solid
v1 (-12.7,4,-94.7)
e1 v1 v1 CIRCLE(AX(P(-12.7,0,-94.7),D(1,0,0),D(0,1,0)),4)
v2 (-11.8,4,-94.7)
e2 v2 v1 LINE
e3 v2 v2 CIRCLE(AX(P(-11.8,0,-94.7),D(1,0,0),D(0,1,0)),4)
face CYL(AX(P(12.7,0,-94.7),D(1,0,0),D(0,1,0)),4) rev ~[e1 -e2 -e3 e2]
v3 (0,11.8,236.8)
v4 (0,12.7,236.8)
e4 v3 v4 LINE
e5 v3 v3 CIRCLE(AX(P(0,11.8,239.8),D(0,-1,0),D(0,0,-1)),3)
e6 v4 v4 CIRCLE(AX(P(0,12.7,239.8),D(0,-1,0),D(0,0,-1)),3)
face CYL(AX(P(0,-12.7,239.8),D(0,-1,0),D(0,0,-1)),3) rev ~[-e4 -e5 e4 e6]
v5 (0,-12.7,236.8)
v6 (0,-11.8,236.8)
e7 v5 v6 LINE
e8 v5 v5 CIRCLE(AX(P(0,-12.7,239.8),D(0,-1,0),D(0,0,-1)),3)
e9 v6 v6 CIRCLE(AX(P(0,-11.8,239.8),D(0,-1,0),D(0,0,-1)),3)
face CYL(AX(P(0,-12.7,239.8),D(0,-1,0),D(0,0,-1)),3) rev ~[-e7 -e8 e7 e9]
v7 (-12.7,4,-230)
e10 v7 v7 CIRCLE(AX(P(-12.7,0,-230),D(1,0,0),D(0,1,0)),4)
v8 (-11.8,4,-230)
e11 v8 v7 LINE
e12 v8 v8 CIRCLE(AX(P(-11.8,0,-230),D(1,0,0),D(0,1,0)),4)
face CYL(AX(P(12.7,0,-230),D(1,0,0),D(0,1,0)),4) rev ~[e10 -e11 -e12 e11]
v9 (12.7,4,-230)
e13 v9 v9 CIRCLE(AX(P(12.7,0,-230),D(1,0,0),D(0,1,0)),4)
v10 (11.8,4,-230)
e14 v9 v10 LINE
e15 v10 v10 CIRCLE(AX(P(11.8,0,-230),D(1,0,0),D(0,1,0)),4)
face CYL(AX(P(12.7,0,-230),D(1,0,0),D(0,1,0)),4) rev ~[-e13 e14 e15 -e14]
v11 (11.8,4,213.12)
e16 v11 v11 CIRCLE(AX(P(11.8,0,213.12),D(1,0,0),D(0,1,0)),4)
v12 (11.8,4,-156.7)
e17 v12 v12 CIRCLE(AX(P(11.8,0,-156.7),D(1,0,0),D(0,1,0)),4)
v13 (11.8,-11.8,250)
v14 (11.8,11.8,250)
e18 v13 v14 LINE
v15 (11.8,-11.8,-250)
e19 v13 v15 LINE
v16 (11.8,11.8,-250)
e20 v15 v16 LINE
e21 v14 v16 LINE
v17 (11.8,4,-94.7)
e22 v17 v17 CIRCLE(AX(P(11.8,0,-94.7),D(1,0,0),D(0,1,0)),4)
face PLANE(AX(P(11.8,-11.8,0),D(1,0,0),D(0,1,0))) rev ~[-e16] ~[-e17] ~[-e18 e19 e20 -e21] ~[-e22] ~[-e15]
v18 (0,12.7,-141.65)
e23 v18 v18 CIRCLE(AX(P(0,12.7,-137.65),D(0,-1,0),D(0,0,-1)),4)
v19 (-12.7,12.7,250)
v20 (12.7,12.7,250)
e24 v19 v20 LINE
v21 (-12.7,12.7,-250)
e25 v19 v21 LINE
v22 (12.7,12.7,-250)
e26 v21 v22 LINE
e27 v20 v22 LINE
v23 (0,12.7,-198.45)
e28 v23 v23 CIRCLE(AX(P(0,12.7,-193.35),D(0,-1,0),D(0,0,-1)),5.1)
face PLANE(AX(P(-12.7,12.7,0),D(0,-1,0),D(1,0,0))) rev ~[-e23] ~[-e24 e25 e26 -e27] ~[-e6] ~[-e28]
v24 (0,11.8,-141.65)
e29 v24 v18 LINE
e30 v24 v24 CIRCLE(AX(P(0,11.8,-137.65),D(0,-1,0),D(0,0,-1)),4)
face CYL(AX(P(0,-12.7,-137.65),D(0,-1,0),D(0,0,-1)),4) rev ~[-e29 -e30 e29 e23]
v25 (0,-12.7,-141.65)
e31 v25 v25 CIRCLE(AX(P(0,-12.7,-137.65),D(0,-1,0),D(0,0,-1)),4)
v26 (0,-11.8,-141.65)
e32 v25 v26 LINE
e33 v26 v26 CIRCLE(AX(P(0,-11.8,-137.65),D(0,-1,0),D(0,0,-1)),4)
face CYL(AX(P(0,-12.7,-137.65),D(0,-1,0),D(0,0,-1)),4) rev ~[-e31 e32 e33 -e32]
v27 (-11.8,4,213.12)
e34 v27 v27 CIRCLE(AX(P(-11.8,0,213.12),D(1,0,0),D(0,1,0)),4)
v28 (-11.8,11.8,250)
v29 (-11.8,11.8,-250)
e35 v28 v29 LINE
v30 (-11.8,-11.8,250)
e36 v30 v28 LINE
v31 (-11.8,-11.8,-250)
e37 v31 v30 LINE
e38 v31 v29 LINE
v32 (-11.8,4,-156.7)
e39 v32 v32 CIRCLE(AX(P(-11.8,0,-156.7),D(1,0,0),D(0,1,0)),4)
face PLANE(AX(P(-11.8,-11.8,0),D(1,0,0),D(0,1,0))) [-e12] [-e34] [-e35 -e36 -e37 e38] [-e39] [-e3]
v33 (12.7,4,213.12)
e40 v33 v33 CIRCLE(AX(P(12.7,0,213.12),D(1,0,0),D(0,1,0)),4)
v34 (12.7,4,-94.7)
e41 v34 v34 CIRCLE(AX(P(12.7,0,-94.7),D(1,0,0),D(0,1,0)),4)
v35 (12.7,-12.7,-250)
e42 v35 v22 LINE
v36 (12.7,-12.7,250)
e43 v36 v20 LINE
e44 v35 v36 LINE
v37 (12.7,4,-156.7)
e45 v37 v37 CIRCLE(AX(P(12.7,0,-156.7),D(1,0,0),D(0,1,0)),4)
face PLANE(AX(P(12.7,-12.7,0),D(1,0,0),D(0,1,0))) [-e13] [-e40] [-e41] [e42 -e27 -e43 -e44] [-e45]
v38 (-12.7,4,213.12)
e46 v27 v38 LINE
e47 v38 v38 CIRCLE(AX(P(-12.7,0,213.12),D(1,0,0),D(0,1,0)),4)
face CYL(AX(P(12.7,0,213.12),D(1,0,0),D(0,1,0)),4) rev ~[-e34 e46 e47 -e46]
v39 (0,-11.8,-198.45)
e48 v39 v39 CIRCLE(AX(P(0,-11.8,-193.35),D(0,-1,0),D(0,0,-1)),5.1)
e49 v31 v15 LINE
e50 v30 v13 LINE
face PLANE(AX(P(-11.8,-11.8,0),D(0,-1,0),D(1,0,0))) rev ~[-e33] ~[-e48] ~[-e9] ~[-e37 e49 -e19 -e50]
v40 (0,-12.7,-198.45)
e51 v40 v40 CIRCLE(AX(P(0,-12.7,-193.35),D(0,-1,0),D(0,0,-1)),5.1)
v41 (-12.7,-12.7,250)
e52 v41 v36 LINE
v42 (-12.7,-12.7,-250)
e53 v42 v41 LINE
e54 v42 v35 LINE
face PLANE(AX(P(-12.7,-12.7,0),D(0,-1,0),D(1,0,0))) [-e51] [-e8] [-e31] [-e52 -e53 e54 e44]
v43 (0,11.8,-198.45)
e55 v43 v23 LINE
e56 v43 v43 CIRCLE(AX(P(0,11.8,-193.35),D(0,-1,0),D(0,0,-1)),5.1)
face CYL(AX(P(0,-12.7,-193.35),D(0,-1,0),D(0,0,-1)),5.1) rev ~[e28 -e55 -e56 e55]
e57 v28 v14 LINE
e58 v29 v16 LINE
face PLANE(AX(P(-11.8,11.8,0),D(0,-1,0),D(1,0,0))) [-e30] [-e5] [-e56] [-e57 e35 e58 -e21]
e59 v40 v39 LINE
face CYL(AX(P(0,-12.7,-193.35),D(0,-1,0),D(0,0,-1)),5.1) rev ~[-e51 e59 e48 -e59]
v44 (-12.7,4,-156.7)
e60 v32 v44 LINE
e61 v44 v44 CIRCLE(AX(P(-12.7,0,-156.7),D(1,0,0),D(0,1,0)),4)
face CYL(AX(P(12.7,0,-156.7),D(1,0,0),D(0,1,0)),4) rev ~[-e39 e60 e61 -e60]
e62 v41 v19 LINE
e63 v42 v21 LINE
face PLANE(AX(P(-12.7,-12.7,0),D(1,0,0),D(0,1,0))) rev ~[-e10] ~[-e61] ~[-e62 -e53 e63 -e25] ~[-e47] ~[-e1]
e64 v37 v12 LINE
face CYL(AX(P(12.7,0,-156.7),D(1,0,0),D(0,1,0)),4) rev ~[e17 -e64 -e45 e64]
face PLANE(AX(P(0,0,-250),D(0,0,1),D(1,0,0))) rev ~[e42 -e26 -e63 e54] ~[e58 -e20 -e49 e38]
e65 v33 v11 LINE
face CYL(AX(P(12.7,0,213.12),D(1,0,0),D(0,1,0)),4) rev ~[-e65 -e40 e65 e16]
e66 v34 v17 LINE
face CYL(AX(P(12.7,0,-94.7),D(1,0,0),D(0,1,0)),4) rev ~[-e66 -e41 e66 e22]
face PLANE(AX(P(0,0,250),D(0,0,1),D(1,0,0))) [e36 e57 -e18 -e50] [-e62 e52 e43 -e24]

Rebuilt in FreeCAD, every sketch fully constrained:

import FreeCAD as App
import Part
import Sketcher
from FreeCAD import Vector

doc = App.newDocument("Part")
body = doc.addObject("PartDesign::Body", "Body")

sketch1 = body.newObject("Sketcher::SketchObject", "Sketch")
sketch1.AttachmentSupport = (doc.getObject("XY_Plane"), [""])
sketch1.MapMode = "FlatFace"
sketch1.addGeometry(Part.LineSegment(Vector(-12.7, 12.7, 0), Vector(-12.7, -12.7, 0)), False)
sketch1.addGeometry(Part.LineSegment(Vector(-12.7, -12.7, 0), Vector(12.7, -12.7, 0)), False)
sketch1.addGeometry(Part.LineSegment(Vector(12.7, -12.7, 0), Vector(12.7, 12.7, 0)), False)
sketch1.addGeometry(Part.LineSegment(Vector(12.7, 12.7, 0), Vector(-12.7, 12.7, 0)), False)
sketch1.addGeometry(Part.LineSegment(Vector(11.8, -11.8, 0), Vector(-11.8, -11.8, 0)), False)
sketch1.addGeometry(Part.LineSegment(Vector(-11.8, -11.8, 0), Vector(-11.8, 11.8, 0)), False)
sketch1.addGeometry(Part.LineSegment(Vector(-11.8, 11.8, 0), Vector(11.8, 11.8, 0)), False)
sketch1.addGeometry(Part.LineSegment(Vector(11.8, 11.8, 0), Vector(11.8, -11.8, 0)), False)
sketch1.addConstraint(Sketcher.Constraint("Coincident", 0, 2, 1, 1))
sketch1.addConstraint(Sketcher.Constraint("Coincident", 1, 2, 2, 1))
sketch1.addConstraint(Sketcher.Constraint("Coincident", 2, 2, 3, 1))
sketch1.addConstraint(Sketcher.Constraint("Coincident", 3, 2, 0, 1))
sketch1.addConstraint(Sketcher.Constraint("Coincident", 4, 2, 5, 1))
sketch1.addConstraint(Sketcher.Constraint("Coincident", 5, 2, 6, 1))
sketch1.addConstraint(Sketcher.Constraint("Coincident", 6, 2, 7, 1))
sketch1.addConstraint(Sketcher.Constraint("Coincident", 7, 2, 4, 1))
sketch1.addConstraint(Sketcher.Constraint("Vertical", 0))
sketch1.addConstraint(Sketcher.Constraint("Horizontal", 1))
sketch1.addConstraint(Sketcher.Constraint("Vertical", 2))
sketch1.addConstraint(Sketcher.Constraint("Horizontal", 3))
sketch1.addConstraint(Sketcher.Constraint("Horizontal", 4))
sketch1.addConstraint(Sketcher.Constraint("Vertical", 5))
sketch1.addConstraint(Sketcher.Constraint("Horizontal", 6))
sketch1.addConstraint(Sketcher.Constraint("Vertical", 7))
sketch1.addConstraint(Sketcher.Constraint("Symmetric", 0, 2, 2, 2, -1, 1))
sketch1.addConstraint(Sketcher.Constraint("Symmetric", 4, 2, 6, 2, -1, 1))
sketch1.addConstraint(Sketcher.Constraint("Equal", 3, 0))
sketch1.addConstraint(Sketcher.Constraint("Equal", 6, 5))
sketch1.addConstraint(Sketcher.Constraint("DistanceX", 1, 1, 1, 2, 25.4))
sketch1.addConstraint(Sketcher.Constraint("DistanceX", 4, 2, 4, 1, 23.6))
pad1 = body.newObject("PartDesign::Pad", "Pad")
pad1.Profile = sketch1
pad1.Length = 500
pad1.Midplane = True

sketch2 = body.newObject("Sketcher::SketchObject", "Sketch001")
sketch2.AttachmentSupport = (doc.getObject("YZ_Plane"), [""])
sketch2.MapMode = "FlatFace"
sketch2.AttachmentOffset = App.Placement(Vector(0, 0, 12.7), App.Rotation())
sketch2.addGeometry(Part.Circle(Vector(0, -156.7, 0), Vector(0, 0, 1), 4), False)
sketch2.addGeometry(Part.Circle(Vector(0, -230, 0), Vector(0, 0, 1), 4), False)
sketch2.addGeometry(Part.Circle(Vector(0, -94.7, 0), Vector(0, 0, 1), 4), False)
sketch2.addGeometry(Part.Circle(Vector(0, 213.12, 0), Vector(0, 0, 1), 4), False)
sketch2.addConstraint(Sketcher.Constraint("Equal", 0, 1))
sketch2.addConstraint(Sketcher.Constraint("Equal", 1, 2))
sketch2.addConstraint(Sketcher.Constraint("Equal", 2, 3))
sketch2.addConstraint(Sketcher.Constraint("PointOnObject", 0, 3, -2))
sketch2.addConstraint(Sketcher.Constraint("PointOnObject", 1, 3, -2))
sketch2.addConstraint(Sketcher.Constraint("PointOnObject", 2, 3, -2))
sketch2.addConstraint(Sketcher.Constraint("PointOnObject", 3, 3, -2))
sketch2.addConstraint(Sketcher.Constraint("Diameter", 0, 8.0))
sketch2.addConstraint(Sketcher.Constraint("DistanceY", 1, 3, -1, 1, 230.0))
sketch2.addConstraint(Sketcher.Constraint("DistanceY", 0, 3, 2, 3, 62.0))
sketch2.addConstraint(Sketcher.Constraint("DistanceY", 0, 3, -1, 1, 156.7))
sketch2.addConstraint(Sketcher.Constraint("DistanceY", -1, 1, 3, 3, 213.12))
pocket1 = body.newObject("PartDesign::Pocket", "Pocket")
pocket1.Profile = sketch2
pocket1.Type = "ThroughAll"

sketch3 = body.newObject("Sketcher::SketchObject", "Sketch002")
sketch3.AttachmentSupport = (doc.getObject("XZ_Plane"), [""])
sketch3.MapMode = "FlatFace"
sketch3.AttachmentOffset = App.Placement(Vector(0, 0, 12.7), App.Rotation())
sketch3.addGeometry(Part.Circle(Vector(0, 239.8, 0), Vector(0, 0, 1), 3), False)
sketch3.addGeometry(Part.Circle(Vector(0, -137.65, 0), Vector(0, 0, 1), 4), False)
sketch3.addGeometry(Part.Circle(Vector(0, -193.35, 0), Vector(0, 0, 1), 5.1), False)
sketch3.addConstraint(Sketcher.Constraint("PointOnObject", 0, 3, -2))
sketch3.addConstraint(Sketcher.Constraint("PointOnObject", 1, 3, -2))
sketch3.addConstraint(Sketcher.Constraint("PointOnObject", 2, 3, -2))
sketch3.addConstraint(Sketcher.Constraint("Diameter", 0, 6.0))
sketch3.addConstraint(Sketcher.Constraint("Diameter", 1, 8.0))
sketch3.addConstraint(Sketcher.Constraint("Diameter", 2, 10.2))
sketch3.addConstraint(Sketcher.Constraint("DistanceY", -1, 1, 0, 3, 239.8))
sketch3.addConstraint(Sketcher.Constraint("DistanceY", 2, 3, 1, 3, 55.7))
sketch3.addConstraint(Sketcher.Constraint("DistanceY", 1, 3, -1, 1, 137.65))
pocket2 = body.newObject("PartDesign::Pocket", "Pocket001")
pocket2.Profile = sketch3
pocket2.Type = "ThroughAll"

doc.recompute()
